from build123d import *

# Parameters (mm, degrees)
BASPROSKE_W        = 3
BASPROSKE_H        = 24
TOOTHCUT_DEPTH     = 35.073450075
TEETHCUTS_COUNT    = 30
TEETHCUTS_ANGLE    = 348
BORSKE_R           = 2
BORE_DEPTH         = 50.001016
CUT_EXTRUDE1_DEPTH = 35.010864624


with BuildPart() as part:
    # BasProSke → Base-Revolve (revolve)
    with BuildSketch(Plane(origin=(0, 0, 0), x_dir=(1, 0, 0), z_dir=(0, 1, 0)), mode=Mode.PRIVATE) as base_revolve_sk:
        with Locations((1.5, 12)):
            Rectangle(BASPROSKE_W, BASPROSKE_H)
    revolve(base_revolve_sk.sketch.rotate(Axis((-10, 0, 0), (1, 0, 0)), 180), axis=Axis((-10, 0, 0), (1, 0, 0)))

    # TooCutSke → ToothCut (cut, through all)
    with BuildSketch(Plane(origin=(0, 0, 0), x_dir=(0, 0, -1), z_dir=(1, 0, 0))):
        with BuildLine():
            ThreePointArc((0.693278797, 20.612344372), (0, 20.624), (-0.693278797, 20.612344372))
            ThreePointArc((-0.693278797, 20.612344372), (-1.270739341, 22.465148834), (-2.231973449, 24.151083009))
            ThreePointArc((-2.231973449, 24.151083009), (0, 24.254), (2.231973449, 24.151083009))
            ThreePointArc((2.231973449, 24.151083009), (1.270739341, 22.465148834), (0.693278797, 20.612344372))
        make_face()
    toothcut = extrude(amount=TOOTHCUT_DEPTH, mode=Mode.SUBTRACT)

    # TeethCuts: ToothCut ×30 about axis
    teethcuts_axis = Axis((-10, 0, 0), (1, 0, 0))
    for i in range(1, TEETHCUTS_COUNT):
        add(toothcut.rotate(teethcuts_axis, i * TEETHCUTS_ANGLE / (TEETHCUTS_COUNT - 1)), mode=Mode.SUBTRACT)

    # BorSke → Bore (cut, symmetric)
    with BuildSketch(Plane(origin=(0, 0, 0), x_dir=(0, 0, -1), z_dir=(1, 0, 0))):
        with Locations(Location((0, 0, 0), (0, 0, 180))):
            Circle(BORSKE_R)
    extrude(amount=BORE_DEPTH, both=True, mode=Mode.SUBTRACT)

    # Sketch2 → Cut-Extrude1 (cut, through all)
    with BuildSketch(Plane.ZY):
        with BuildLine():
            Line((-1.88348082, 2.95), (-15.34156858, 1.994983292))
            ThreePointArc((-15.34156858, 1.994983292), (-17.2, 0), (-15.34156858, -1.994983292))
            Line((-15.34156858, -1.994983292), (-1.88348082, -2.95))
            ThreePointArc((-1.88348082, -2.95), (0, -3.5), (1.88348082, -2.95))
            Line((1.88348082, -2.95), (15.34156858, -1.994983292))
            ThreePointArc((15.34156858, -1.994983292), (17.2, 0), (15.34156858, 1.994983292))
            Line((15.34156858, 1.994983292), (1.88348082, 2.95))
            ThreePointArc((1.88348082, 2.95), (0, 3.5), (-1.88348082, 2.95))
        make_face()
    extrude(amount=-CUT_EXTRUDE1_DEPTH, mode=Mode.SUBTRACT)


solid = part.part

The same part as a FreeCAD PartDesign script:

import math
import FreeCAD as App
import Part
import Sketcher
from FreeCAD import Vector
Q = App.Units.Quantity

doc = App.newDocument("Part")
body = doc.addObject("PartDesign::Body", "Body")

# Sketch on XZ plane
sketch1 = body.newObject("Sketcher::SketchObject", "Sketch")
sketch1.AttachmentSupport = (doc.getObject("XZ_Plane"), [""])
sketch1.MapMode = "FlatFace"
sketch1.addGeometry([
    Part.LineSegment(Vector(0, -24, 0), Vector(0, 0, 0)),
    Part.LineSegment(Vector(0, 0, 0), Vector(3, 0, 0)),
    Part.LineSegment(Vector(3, 0, 0), Vector(3, -24, 0)),
    Part.LineSegment(Vector(3, -24, 0), Vector(0, -24, 0)),
], False)
sketch1.addConstraint([
    Sketcher.Constraint("Coincident", 0, 2, 1, 1),
    Sketcher.Constraint("Coincident", 1, 2, 2, 1),
    Sketcher.Constraint("Coincident", 2, 2, 3, 1),
    Sketcher.Constraint("Coincident", 3, 2, 0, 1),
    Sketcher.Constraint("Vertical", 0),
    Sketcher.Constraint("Horizontal", 1),
    Sketcher.Constraint("Vertical", 2),
    Sketcher.Constraint("Horizontal", 3),
    Sketcher.Constraint("Coincident", 0, 2, -1, 1),
    Sketcher.Constraint("DistanceX", 1, 1, 1, 2, Q("3 mm")),
    Sketcher.Constraint("DistanceY", 0, 1, 0, 2, Q("24 mm")),
])
revolution = body.newObject("PartDesign::Revolution", "Revolution")
revolution.Profile = sketch1
revolution.ReferenceAxis = (sketch1, ["H_Axis"])
revolution.Angle = 360

# Sketch on YZ plane
sketch2 = body.newObject("Sketcher::SketchObject", "Sketch001")
sketch2.AttachmentSupport = (doc.getObject("YZ_Plane"), [""])
sketch2.MapMode = "FlatFace"
sketch2.addGeometry([
    Part.ArcOfCircle(Part.Circle(Vector(0, 0, 0), Vector(0, 0, 1), 20.624), math.radians(-1.926369), math.radians(1.926369)),
    Part.ArcOfCircle(Part.Circle(Vector(18.876393, -9.524274, 0), Vector(0, 0, 1), 9), math.radians(54.120911), math.radians(78.87889)),
    Part.ArcOfCircle(Part.Circle(Vector(0, 0, 0), Vector(0, 0, 1), 24.254), math.radians(-5.280112), math.radians(5.280112)),
    Part.ArcOfCircle(Part.Circle(Vector(18.876393, 9.524274, 0), Vector(0, 0, 1), 9), math.radians(-78.87889), math.radians(-54.120911)),
], False)
sketch2.addConstraint([
    Sketcher.Constraint("Coincident", 0, 1, 1, 2),
    Sketcher.Constraint("Coincident", 1, 1, 2, 1),
    Sketcher.Constraint("Coincident", 2, 2, 3, 2),
    Sketcher.Constraint("Coincident", 3, 1, 0, 2),
    Sketcher.Constraint("Coincident", 0, 3, -1, 1),
    Sketcher.Constraint("Coincident", 2, 3, -1, 1),
    Sketcher.Constraint("Equal", 1, 3),
    Sketcher.Constraint("Symmetric", 1, 3, 3, 3, -1),
    Sketcher.Constraint("Radius", 1, Q("9 mm")),
    Sketcher.Constraint("Radius", 0, Q("20.624 mm")),
    Sketcher.Constraint("Radius", 2, Q("24.254 mm")),
    Sketcher.Constraint("DistanceY", 1, 3, 1, 1, Q("7.2923 mm")),
    Sketcher.Constraint("DistanceY", 0, 1, -1, 1, Q("0.693279 mm")),
])
pocket1 = body.newObject("PartDesign::Pocket", "Pocket")
pocket1.Profile = sketch2
pocket1.Type = "ThroughAll"
pocket1.Reversed = True
doc.recompute()

polarpattern = body.newObject("PartDesign::PolarPattern", "PolarPattern")
polarpattern.Originals = [pocket1]
polarpattern.Axis = (doc.getObject("X_Axis"), [""])
polarpattern.Angle = 360
polarpattern.Occurrences = 30
body.Tip = polarpattern

# Sketch on YZ plane
sketch3 = body.newObject("Sketcher::SketchObject", "Sketch002")
sketch3.AttachmentSupport = (doc.getObject("YZ_Plane"), [""])
sketch3.MapMode = "FlatFace"
sketch3.addGeometry(Part.Circle(Vector(0, 0, 0), Vector(0, 0, 1), 2), False)
sketch3.addConstraint([
    Sketcher.Constraint("Coincident", 0, 3, -1, 1),
    Sketcher.Constraint("Diameter", 0, Q("4 mm")),
])
pocket2 = body.newObject("PartDesign::Pocket", "Pocket001")
pocket2.Profile = sketch3
pocket2.Length = 100.002032
pocket2.Midplane = True

# Sketch on YZ plane
sketch4 = body.newObject("Sketcher::SketchObject", "Sketch003")
sketch4.AttachmentSupport = (doc.getObject("YZ_Plane"), [""])
sketch4.MapMode = "FlatFace"
sketch4.addGeometry([
    Part.LineSegment(Vector(2.95, -1.883481, 0), Vector(1.994983, -15.341569, 0)),  # 0
    Part.ArcOfCircle(Part.Circle(Vector(0, -15.2, 0), Vector(0, 0, 1), 2), math.radians(-175.940965), math.radians(-4.059035)),  # 1
    Part.LineSegment(Vector(-1.994983, -15.341569, 0), Vector(-2.95, -1.883481, 0)),  # 2
    Part.ArcOfCircle(Part.Circle(Vector(0, 0, 0), Vector(0, 0, 1), 3.5), math.radians(147.443068), math.radians(212.556932)),  # 3
    Part.LineSegment(Vector(-2.95, 1.883481, 0), Vector(-1.994983, 15.341569, 0)),  # 4
    Part.ArcOfCircle(Part.Circle(Vector(0, 15.2, 0), Vector(0, 0, 1), 2), math.radians(4.059035), math.radians(175.940965)),  # 5
    Part.LineSegment(Vector(1.994983, 15.341569, 0), Vector(2.95, 1.883481, 0)),  # 6
    Part.ArcOfCircle(Part.Circle(Vector(0, 0, 0), Vector(0, 0, 1), 3.5), math.radians(-32.556932), math.radians(32.556932)),  # 7
], False)
sketch4.addConstraint([
    Sketcher.Constraint("Tangent", 0, 2, 1, 2),
    Sketcher.Constraint("Tangent", 1, 1, 2, 1),
    Sketcher.Constraint("Coincident", 2, 2, 3, 2),
    Sketcher.Constraint("Coincident", 3, 1, 4, 1),
    Sketcher.Constraint("Tangent", 4, 2, 5, 2),
    Sketcher.Constraint("Tangent", 5, 1, 6, 1),
    Sketcher.Constraint("Coincident", 6, 2, 7, 2),
    Sketcher.Constraint("Coincident", 7, 1, 0, 1),
    Sketcher.Constraint("Coincident", 3, 3, -1, 1),
    Sketcher.Constraint("Coincident", 7, 3, -1, 1),
    Sketcher.Constraint("Equal", 1, 5),
    Sketcher.Constraint("Equal", 3, 7),
    Sketcher.Constraint("Symmetric", 1, 3, 5, 3, -1, 1),
    Sketcher.Constraint("Symmetric", 0, 2, 1, 1, -2),
    Sketcher.Constraint("Parallel", 0, 4),
    Sketcher.Constraint("Parallel", 2, 6),
    Sketcher.Constraint("Radius", 1, Q("2 mm")),
    Sketcher.Constraint("Radius", 3, Q("3.5 mm")),
    Sketcher.Constraint("DistanceY", 1, 3, -1, 1, Q("15.2 mm")),
    Sketcher.Constraint("DistanceX", 3, 1, 6, 2, Q("5.9 mm")),
])
pocket3 = body.newObject("PartDesign::Pocket", "Pocket002")
pocket3.Profile = sketch4
pocket3.Type = "ThroughAll"
pocket3.Reversed = True

doc.recompute()
